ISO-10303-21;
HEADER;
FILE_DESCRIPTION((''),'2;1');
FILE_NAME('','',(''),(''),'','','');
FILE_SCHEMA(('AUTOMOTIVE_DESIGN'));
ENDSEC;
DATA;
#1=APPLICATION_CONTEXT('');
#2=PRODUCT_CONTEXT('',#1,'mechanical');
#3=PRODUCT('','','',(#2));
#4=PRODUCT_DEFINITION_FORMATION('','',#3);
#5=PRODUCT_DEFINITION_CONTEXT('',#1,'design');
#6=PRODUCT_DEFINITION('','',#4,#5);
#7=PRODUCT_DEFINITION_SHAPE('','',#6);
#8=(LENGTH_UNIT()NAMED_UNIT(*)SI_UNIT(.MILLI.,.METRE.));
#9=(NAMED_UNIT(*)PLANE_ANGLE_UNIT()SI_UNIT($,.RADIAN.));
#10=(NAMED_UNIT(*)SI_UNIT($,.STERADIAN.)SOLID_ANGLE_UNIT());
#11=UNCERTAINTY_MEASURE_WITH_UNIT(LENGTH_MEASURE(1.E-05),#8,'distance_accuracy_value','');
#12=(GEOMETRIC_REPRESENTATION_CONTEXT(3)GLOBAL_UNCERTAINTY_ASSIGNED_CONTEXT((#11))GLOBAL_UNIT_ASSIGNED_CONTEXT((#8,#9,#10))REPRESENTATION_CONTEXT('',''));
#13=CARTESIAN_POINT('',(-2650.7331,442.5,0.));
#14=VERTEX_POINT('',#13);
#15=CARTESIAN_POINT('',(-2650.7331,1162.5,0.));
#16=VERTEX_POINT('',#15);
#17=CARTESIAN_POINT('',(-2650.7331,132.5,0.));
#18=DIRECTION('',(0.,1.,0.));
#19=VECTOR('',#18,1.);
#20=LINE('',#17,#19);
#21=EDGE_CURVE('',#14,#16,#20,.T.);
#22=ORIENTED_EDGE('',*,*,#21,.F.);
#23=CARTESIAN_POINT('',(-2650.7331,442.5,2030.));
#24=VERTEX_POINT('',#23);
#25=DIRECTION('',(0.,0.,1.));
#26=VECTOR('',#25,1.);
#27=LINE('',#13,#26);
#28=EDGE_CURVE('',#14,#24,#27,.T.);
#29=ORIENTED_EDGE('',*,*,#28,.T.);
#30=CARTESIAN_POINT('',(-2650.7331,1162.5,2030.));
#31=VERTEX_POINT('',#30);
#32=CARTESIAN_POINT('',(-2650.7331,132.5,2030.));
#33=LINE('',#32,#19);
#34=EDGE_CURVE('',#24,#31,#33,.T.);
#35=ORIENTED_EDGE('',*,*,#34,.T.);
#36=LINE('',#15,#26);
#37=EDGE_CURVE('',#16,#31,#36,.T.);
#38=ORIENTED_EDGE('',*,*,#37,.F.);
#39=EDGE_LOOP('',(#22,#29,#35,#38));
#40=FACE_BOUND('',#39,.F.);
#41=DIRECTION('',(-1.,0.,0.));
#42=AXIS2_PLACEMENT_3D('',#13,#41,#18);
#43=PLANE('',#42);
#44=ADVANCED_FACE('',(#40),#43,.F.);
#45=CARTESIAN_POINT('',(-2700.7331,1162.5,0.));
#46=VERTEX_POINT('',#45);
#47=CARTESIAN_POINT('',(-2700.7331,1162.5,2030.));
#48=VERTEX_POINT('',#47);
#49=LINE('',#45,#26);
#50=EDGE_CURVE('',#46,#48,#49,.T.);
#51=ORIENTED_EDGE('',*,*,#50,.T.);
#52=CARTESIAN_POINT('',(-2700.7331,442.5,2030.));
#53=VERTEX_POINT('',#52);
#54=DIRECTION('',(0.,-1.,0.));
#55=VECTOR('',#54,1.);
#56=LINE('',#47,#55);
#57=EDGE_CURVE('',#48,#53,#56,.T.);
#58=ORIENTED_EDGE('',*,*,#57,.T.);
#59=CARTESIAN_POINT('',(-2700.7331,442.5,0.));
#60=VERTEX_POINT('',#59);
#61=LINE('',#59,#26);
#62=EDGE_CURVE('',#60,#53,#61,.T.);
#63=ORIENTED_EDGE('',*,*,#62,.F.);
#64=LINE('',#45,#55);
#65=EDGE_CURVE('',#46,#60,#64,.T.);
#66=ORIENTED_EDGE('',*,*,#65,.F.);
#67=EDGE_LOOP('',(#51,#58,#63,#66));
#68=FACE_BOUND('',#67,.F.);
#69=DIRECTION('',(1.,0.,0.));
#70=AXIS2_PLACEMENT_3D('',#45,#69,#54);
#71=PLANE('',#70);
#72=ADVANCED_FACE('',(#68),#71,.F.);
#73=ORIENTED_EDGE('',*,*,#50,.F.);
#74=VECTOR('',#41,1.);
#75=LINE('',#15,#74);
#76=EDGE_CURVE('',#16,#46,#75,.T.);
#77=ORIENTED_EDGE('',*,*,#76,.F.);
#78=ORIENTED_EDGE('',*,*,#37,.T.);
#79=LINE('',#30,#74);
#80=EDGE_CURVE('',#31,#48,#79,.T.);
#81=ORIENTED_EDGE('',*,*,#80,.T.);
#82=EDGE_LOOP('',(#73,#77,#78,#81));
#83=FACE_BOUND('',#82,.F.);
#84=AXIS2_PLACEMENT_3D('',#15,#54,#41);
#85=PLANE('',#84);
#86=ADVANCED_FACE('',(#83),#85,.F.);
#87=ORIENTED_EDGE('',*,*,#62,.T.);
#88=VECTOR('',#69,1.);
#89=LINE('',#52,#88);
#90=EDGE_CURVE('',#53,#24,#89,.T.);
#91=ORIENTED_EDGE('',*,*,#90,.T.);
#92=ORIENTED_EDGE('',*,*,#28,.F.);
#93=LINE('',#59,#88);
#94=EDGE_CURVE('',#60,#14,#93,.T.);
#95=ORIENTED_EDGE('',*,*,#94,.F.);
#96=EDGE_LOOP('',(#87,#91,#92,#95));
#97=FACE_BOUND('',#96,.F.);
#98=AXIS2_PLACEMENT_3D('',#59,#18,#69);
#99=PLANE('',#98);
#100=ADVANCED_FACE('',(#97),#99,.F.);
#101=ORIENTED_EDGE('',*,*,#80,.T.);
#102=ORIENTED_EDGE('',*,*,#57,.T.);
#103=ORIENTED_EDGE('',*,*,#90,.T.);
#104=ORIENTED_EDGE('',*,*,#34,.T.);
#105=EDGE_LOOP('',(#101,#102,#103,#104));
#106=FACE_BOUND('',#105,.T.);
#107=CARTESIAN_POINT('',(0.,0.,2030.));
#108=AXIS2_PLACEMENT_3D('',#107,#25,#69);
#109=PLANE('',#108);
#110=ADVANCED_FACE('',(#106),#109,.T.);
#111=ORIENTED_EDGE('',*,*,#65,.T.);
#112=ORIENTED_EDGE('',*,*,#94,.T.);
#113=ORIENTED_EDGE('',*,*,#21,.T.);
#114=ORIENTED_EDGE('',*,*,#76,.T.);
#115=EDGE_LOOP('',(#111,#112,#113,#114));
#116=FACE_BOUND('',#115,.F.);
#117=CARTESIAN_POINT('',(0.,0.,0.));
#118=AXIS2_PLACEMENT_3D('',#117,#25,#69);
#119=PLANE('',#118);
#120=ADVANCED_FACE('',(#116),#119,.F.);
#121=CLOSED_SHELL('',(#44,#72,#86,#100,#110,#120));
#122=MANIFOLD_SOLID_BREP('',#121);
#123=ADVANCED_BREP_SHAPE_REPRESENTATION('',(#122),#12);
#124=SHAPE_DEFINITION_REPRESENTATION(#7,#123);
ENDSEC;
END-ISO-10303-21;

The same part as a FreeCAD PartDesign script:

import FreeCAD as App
import Part
import Sketcher

V = App.Vector


def add_polygon(sketch, points):
    """Adds a closed chain of lines whose ends are joined by coincident constraints."""
    first, n = sketch.GeometryCount, len(points)
    for a, b in zip(points, points[1:] + points[:1]):
        sketch.addGeometry(Part.LineSegment(App.Vector(*a, 0), App.Vector(*b, 0)), False)
    for i in range(n):
        sketch.addConstraint(Sketcher.Constraint("Coincident", first + i, 2, first + (i + 1) % n, 1))

doc = App.newDocument("Part")
body = doc.addObject("PartDesign::Body", "Body")

sketch1 = body.newObject("Sketcher::SketchObject", "Sketch")
sketch1.AttachmentSupport = (doc.getObject("XY_Plane"), [""])
sketch1.MapMode = "FlatFace"
add_polygon(sketch1, [(-2651, 442), (-2651, 1162), (-2701, 1162), (-2701, 442)])
sketch1.addConstraint([
    Sketcher.Constraint("Vertical", 0),
    Sketcher.Constraint("Horizontal", 1),
    Sketcher.Constraint("Vertical", 2),
    Sketcher.Constraint("Horizontal", 3),
    Sketcher.Constraint("DistanceX", 1, 2, 1, 1, 50.0),
    Sketcher.Constraint("DistanceY", 0, 1, 0, 2, 720.0),
    Sketcher.Constraint("DistanceY", -1, 1, 0, 2, 1162.5),
    Sketcher.Constraint("DistanceX", 0, 2, -1, 1, 2650.733),
])
pad1 = body.newObject("PartDesign::Pad", "Pad")
pad1.Profile = sketch1
pad1.Length = 2030

doc.recompute()
